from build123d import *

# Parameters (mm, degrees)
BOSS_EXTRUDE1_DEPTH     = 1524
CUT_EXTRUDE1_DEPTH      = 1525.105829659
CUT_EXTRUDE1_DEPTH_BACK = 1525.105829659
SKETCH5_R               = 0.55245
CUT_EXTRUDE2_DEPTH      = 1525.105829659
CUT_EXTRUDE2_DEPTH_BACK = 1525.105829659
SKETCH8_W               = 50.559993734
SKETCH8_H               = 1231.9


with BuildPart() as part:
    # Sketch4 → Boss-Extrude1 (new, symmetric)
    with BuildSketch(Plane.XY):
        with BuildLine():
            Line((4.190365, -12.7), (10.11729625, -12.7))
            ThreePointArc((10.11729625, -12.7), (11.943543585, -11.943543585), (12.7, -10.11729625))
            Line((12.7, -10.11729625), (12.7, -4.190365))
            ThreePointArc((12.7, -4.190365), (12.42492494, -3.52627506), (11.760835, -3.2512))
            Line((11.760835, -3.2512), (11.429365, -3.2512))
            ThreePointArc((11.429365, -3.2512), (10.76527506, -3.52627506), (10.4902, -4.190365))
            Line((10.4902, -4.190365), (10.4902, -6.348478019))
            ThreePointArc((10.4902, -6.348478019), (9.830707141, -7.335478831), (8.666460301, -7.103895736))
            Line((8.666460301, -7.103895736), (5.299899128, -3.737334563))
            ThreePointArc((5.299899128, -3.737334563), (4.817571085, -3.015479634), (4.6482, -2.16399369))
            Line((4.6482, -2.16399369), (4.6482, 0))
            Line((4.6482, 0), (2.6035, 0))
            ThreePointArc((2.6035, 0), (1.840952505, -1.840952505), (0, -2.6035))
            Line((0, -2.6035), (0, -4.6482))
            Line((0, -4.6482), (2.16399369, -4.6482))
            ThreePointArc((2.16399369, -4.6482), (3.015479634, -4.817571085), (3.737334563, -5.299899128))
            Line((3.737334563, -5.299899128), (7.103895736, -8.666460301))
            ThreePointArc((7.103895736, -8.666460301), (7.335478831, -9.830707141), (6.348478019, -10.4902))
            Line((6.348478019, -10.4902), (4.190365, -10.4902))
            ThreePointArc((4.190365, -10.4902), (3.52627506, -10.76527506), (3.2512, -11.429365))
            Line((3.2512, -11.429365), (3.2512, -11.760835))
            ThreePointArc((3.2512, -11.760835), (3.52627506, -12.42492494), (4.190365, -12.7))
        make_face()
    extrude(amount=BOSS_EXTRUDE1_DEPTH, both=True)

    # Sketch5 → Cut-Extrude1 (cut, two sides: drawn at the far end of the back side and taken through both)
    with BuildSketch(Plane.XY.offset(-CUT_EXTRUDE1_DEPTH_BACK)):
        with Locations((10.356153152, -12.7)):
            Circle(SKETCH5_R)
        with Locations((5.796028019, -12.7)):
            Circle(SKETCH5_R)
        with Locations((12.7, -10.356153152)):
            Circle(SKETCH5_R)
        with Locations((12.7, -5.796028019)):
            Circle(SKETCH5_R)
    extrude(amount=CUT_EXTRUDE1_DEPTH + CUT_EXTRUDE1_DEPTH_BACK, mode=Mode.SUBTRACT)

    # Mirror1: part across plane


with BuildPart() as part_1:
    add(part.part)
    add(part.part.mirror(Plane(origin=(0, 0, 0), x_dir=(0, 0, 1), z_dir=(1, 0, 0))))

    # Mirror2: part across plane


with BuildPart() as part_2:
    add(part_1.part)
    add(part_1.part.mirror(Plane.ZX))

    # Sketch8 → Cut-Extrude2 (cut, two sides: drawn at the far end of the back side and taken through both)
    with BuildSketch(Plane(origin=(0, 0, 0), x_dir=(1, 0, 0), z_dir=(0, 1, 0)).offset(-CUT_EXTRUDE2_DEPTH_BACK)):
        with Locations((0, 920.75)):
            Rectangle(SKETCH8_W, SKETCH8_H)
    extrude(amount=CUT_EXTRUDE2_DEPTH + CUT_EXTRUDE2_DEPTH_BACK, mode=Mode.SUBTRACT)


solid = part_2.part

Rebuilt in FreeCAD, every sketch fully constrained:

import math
import FreeCAD as App
import Part
import Sketcher
Q = App.Units.Quantity

doc = App.newDocument("Part")
params = doc.addObject("Spreadsheet::Sheet", "Params")
for row, (alias, value) in enumerate([
    ("pad1_length", "120 in"),
    ("sketch3_height", "48.5 in"),
], start=1):
    params.set(f"A{row}", alias)
    params.set(f"B{row}", "=" + value)
    params.setAlias(f"B{row}", alias)

body = doc.addObject("PartDesign::Body", "Body")

sketch1 = body.newObject("Sketcher::SketchObject", "Sketch")
sketch1.AttachmentSupport = (doc.getObject("XY_Plane"), [""])
sketch1.MapMode = "FlatFace"
sketch1.addGeometry([
    Part.LineSegment(App.Vector(4.19, -12.7, 0), App.Vector(10.12, -12.7, 0)),
    Part.ArcOfCircle(Part.Circle(App.Vector(10.12, -10.12, 0), App.Vector(0, 0, 1), 2.58), math.radians(-90), math.radians(0)),
    Part.LineSegment(App.Vector(12.7, -10.12, 0), App.Vector(12.7, -4.19, 0)),
    Part.ArcOfCircle(Part.Circle(App.Vector(11.76, -4.19, 0), App.Vector(0, 0, 1), 0.94), math.radians(0), math.radians(90)),
    Part.LineSegment(App.Vector(11.76, -3.25, 0), App.Vector(11.43, -3.25, 0)),
    Part.ArcOfCircle(Part.Circle(App.Vector(11.43, -4.19, 0), App.Vector(0, 0, 1), 0.94), math.radians(90), math.radians(180)),
    Part.LineSegment(App.Vector(10.49, -4.19, 0), App.Vector(10.49, -6.35, 0)),
    Part.ArcOfCircle(Part.Circle(App.Vector(9.42, -6.35, 0), App.Vector(0, 0, 1), 1.07), math.radians(-135), math.radians(0)),
    Part.LineSegment(App.Vector(8.67, -7.1, 0), App.Vector(5.3, -3.74, 0)),
    Part.ArcOfCircle(Part.Circle(App.Vector(6.87, -2.16, 0), App.Vector(0, 0, 1), 2.23), math.radians(-180), math.radians(-135)),
    Part.LineSegment(App.Vector(4.65, -2.16, 0), App.Vector(4.65, 0, 0)),
    Part.LineSegment(App.Vector(4.65, 0, 0), App.Vector(2.6, 0, 0)),
    Part.ArcOfCircle(Part.Circle(App.Vector(0, 0, 0), App.Vector(0, 0, 1), 2.6), math.radians(-90), math.radians(0)),
    Part.LineSegment(App.Vector(0, -2.6, 0), App.Vector(0, -4.65, 0)),
    Part.LineSegment(App.Vector(0, -4.65, 0), App.Vector(2.16, -4.65, 0)),
    Part.ArcOfCircle(Part.Circle(App.Vector(2.16, -6.87, 0), App.Vector(0, 0, 1), 2.23), math.radians(45), math.radians(90)),
    Part.LineSegment(App.Vector(3.74, -5.3, 0), App.Vector(7.1, -8.67, 0)),
    Part.ArcOfCircle(Part.Circle(App.Vector(6.35, -9.42, 0), App.Vector(0, 0, 1), 1.07), math.radians(-90), math.radians(45)),
    Part.LineSegment(App.Vector(6.35, -10.49, 0), App.Vector(4.19, -10.49, 0)),
    Part.ArcOfCircle(Part.Circle(App.Vector(4.19, -11.43, 0), App.Vector(0, 0, 1), 0.94), math.radians(90), math.radians(180)),
    Part.LineSegment(App.Vector(3.25, -11.43, 0), App.Vector(3.25, -11.76, 0)),
    Part.ArcOfCircle(Part.Circle(App.Vector(4.19, -11.76, 0), App.Vector(0, 0, 1), 0.94), math.radians(-180), math.radians(-90)),
], False)
sketch1.addConstraint([
    Sketcher.Constraint("Tangent", 0, 2, 1, 1),
    Sketcher.Constraint("Tangent", 1, 2, 2, 1),
    Sketcher.Constraint("Tangent", 2, 2, 3, 1),
    Sketcher.Constraint("Tangent", 3, 2, 4, 1),
    Sketcher.Constraint("Tangent", 4, 2, 5, 1),
    Sketcher.Constraint("Tangent", 5, 2, 6, 1),
    Sketcher.Constraint("Tangent", 6, 2, 7, 2),
    Sketcher.Constraint("Tangent", 7, 1, 8, 1),
    Sketcher.Constraint("Tangent", 8, 2, 9, 2),
    Sketcher.Constraint("Tangent", 9, 1, 10, 1),
    Sketcher.Constraint("Coincident", 10, 2, 11, 1),
    Sketcher.Constraint("Coincident", 11, 2, 12, 2),
    Sketcher.Constraint("Coincident", 12, 1, 13, 1),
    Sketcher.Constraint("Coincident", 13, 2, 14, 1),
    Sketcher.Constraint("Tangent", 14, 2, 15, 2),
    Sketcher.Constraint("Tangent", 15, 1, 16, 1),
    Sketcher.Constraint("Tangent", 16, 2, 17, 2),
    Sketcher.Constraint("Tangent", 17, 1, 18, 1),
    Sketcher.Constraint("Tangent", 18, 2, 19, 1),
    Sketcher.Constraint("Tangent", 19, 2, 20, 1),
    Sketcher.Constraint("Tangent", 20, 2, 21, 1),
    Sketcher.Constraint("Tangent", 21, 2, 0, 1),
    Sketcher.Constraint("Horizontal", 0),
    Sketcher.Constraint("Vertical", 2),
    Sketcher.Constraint("Horizontal", 4),
    Sketcher.Constraint("Vertical", 6),
    Sketcher.Constraint("Vertical", 10),
    Sketcher.Constraint("Horizontal", 11),
    Sketcher.Constraint("Vertical", 13),
    Sketcher.Constraint("Horizontal", 14),
    Sketcher.Constraint("Horizontal", 18),
    Sketcher.Constraint("Vertical", 20),
    Sketcher.Constraint("Coincident", 12, 3, -1, 1),
    Sketcher.Constraint("Equal", 3, 5),
    Sketcher.Constraint("Equal", 9, 15),
    Sketcher.Constraint("Equal", 7, 17),
    Sketcher.Constraint("Equal", 5, 19),
    Sketcher.Constraint("Equal", 19, 21),
    Sketcher.Constraint("PointOnObject", 10, 2, -1),
    Sketcher.Constraint("PointOnObject", 12, 1, -2),
    Sketcher.Constraint("Parallel", 8, 16),
    Sketcher.Constraint("Equal", 0, 2),
    Sketcher.Constraint("Equal", 18, 6),
    Sketcher.Constraint("Equal", 14, 10),
    Sketcher.Constraint("Equal", 11, 13),
    Sketcher.Constraint("Equal", 4, 20),
    Sketcher.Constraint("Equal", 8, 16),
    Sketcher.Constraint("DistanceY", 0, 2, -1, 1, Q("0.5 in")),
    Sketcher.Constraint("Radius", 9, Q("0.0876 in")),
    Sketcher.Constraint("Radius", 12, Q("0.1025 in")),
    Sketcher.Constraint("DistanceX", 9, 1, 5, 2, Q("0.23 in")),
    Sketcher.Constraint("DistanceX", 11, 2, 11, 1, Q("0.0805 in")),
    Sketcher.Constraint("DistanceY", 3, 2, -1, 1, Q("0.128 in")),
    Sketcher.Constraint("Radius", 7, 1.068322),
    Sketcher.Constraint("DistanceX", 17, 3, 7, 3, Q("0.121 in")),
    Sketcher.Constraint("Radius", 1, 2.582704),
    Sketcher.Constraint("Radius", 3, 0.939165),
])
pad1 = body.newObject("PartDesign::Pad", "Pad")
pad1.Profile = sketch1
pad1.setExpression("Length", "Params.pad1_length")
pad1.Midplane = True

sketch2 = body.newObject("Sketcher::SketchObject", "Sketch001")
sketch2.AttachmentSupport = (doc.getObject("XY_Plane"), [""])
sketch2.MapMode = "FlatFace"
sketch2.addGeometry([
    Part.Circle(App.Vector(10.4, -12.7, 0), App.Vector(0, 0, 1), 0.6),
    Part.Circle(App.Vector(5.8, -12.7, 0), App.Vector(0, 0, 1), 0.6),
    Part.Circle(App.Vector(12.7, -10.4, 0), App.Vector(0, 0, 1), 0.6),
    Part.Circle(App.Vector(12.7, -5.8, 0), App.Vector(0, 0, 1), 0.6),
], False)
sketch2.addConstraint([
    Sketcher.Constraint("Equal", 0, 1),
    Sketcher.Constraint("Equal", 1, 2),
    Sketcher.Constraint("Equal", 2, 3),
    Sketcher.Constraint("Horizontal", 0, 3, 1, 3),
    Sketcher.Constraint("Vertical", 2, 3, 3, 3),
    Sketcher.Constraint("Diameter", 0, Q("0.0435 in")),
    Sketcher.Constraint("DistanceY", 0, 3, -1, 1, Q("0.5 in")),
    Sketcher.Constraint("DistanceX", -1, 1, 2, 3, Q("0.5 in")),
    Sketcher.Constraint("DistanceX", -1, 1, 1, 3, 5.796028),
    Sketcher.Constraint("DistanceY", 3, 3, -1, 1, 5.796028),
    Sketcher.Constraint("DistanceX", -1, 1, 0, 3, 10.356153),
    Sketcher.Constraint("DistanceY", 2, 3, -1, 1, 10.356153),
])
pocket1 = body.newObject("PartDesign::Pocket", "Pocket")
pocket1.Profile = sketch2
pocket1.Type = "ThroughAll"
pocket1.Midplane = True
body2 = doc.addObject("PartDesign::Body", "Body001")
doc.recompute()

body2.BaseFeature = body
doc.recompute()

mirroring = doc.addObject("Part::Mirroring", "Mirroring")
mirroring.Source = body
mirroring.Base = App.Vector(0, 0, 0)
mirroring.Normal = App.Vector(1, 0, 0)
body3 = doc.addObject("PartDesign::Body", "Body002")
body3.BaseFeature = mirroring
boolean = body2.newObject("PartDesign::Boolean", "Boolean")
boolean.Type = "Fuse"
boolean.addObjects([body3])
doc.recompute()
body4 = doc.addObject("PartDesign::Body", "Body003")
doc.recompute()

body4.BaseFeature = body2
doc.recompute()

mirroring2 = doc.addObject("Part::Mirroring", "Mirroring001")
mirroring2.Source = body2
mirroring2.Base = App.Vector(0, 0, 0)
mirroring2.Normal = App.Vector(0, 1, 0)
body5 = doc.addObject("PartDesign::Body", "Body004")
body5.BaseFeature = mirroring2
boolean2 = body4.newObject("PartDesign::Boolean", "Boolean001")
boolean2.Type = "Fuse"
boolean2.addObjects([body5])
doc.recompute()

sketch3 = body4.newObject("Sketcher::SketchObject", "Sketch002")
sketch3.AttachmentSupport = (doc.getObject("XZ_Plane003"), [""])
sketch3.MapMode = "FlatFace"
sketch3.addGeometry([
    Part.LineSegment(App.Vector(-25, -1537, 0), App.Vector(-25, -305, 0)),
    Part.LineSegment(App.Vector(-25, -305, 0), App.Vector(25, -305, 0)),
    Part.LineSegment(App.Vector(25, -305, 0), App.Vector(25, -1537, 0)),
    Part.LineSegment(App.Vector(25, -1537, 0), App.Vector(-25, -1537, 0)),
], False)
sketch3.addConstraint([
    Sketcher.Constraint("Coincident", 0, 2, 1, 1),
    Sketcher.Constraint("Coincident", 1, 2, 2, 1),
    Sketcher.Constraint("Coincident", 2, 2, 3, 1),
    Sketcher.Constraint("Coincident", 3, 2, 0, 1),
    Sketcher.Constraint("Vertical", 0),
    Sketcher.Constraint("Horizontal", 1),
    Sketcher.Constraint("Vertical", 2),
    Sketcher.Constraint("Horizontal", 3),
    Sketcher.Constraint("DistanceY", 0, 1, 0, 2, Q("48.5 in")),
    Sketcher.Constraint("DistanceY", 0, 2, -1, 1, Q("12 in")),
    Sketcher.Constraint("DistanceX", 1, 1, 1, 2, 50.559994),
    Sketcher.Constraint("DistanceX", 0, 2, -1, 1, 25.279997),
])
sketch3.setExpression("Constraints[8]", "Params.sketch3_height")
pocket2 = body4.newObject("PartDesign::Pocket", "Pocket001")
pocket2.Profile = sketch3
pocket2.Type = "ThroughAll"
pocket2.Midplane = True
mirroring.Visibility = False
mirroring2.Visibility = False

doc.recompute()
